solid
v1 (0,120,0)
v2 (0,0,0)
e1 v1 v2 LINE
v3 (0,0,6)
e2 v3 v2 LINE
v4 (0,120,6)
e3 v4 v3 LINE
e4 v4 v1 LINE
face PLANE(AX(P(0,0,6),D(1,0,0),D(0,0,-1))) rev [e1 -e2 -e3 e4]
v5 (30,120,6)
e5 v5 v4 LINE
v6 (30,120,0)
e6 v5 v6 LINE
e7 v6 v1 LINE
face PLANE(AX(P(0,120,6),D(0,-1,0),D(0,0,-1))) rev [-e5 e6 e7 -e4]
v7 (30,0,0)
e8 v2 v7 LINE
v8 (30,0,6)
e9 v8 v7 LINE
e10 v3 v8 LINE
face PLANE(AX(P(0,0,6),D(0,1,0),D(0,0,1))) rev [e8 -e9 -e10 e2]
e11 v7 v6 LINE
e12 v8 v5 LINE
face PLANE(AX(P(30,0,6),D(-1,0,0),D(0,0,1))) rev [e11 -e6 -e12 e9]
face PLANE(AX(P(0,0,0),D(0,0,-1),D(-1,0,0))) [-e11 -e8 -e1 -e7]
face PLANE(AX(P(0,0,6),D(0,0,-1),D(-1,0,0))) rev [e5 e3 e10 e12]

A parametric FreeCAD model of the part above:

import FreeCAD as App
import Part
import Sketcher

doc = App.newDocument("Part")
body = doc.addObject("PartDesign::Body", "Body")

sketch1 = body.newObject("Sketcher::SketchObject", "Sketch")
sketch1.AttachmentSupport = (doc.getObject("XY_Plane"), [""])
sketch1.MapMode = "FlatFace"
sketch1.addGeometry([
    Part.LineSegment(App.Vector(0, 120, 0), App.Vector(0, 0, 0)),
    Part.LineSegment(App.Vector(0, 0, 0), App.Vector(30, 0, 0)),
    Part.LineSegment(App.Vector(30, 0, 0), App.Vector(30, 120, 0)),
    Part.LineSegment(App.Vector(30, 120, 0), App.Vector(0, 120, 0)),
], False)
sketch1.addConstraint([
    Sketcher.Constraint("Coincident", 0, 2, 1, 1),
    Sketcher.Constraint("Coincident", 1, 2, 2, 1),
    Sketcher.Constraint("Coincident", 2, 2, 3, 1),
    Sketcher.Constraint("Coincident", 3, 2, 0, 1),
    Sketcher.Constraint("Vertical", 0),
    Sketcher.Constraint("Horizontal", 1),
    Sketcher.Constraint("Vertical", 2),
    Sketcher.Constraint("Horizontal", 3),
    Sketcher.Constraint("Coincident", 0, 2, -1, 1),
    Sketcher.Constraint("DistanceX", 1, 1, 1, 2, 30.0),
    Sketcher.Constraint("DistanceY", 0, 2, 0, 1, 120.0),
])
pad1 = body.newObject("PartDesign::Pad", "Pad")
pad1.Profile = sketch1
pad1.Length = 6

doc.recompute()
